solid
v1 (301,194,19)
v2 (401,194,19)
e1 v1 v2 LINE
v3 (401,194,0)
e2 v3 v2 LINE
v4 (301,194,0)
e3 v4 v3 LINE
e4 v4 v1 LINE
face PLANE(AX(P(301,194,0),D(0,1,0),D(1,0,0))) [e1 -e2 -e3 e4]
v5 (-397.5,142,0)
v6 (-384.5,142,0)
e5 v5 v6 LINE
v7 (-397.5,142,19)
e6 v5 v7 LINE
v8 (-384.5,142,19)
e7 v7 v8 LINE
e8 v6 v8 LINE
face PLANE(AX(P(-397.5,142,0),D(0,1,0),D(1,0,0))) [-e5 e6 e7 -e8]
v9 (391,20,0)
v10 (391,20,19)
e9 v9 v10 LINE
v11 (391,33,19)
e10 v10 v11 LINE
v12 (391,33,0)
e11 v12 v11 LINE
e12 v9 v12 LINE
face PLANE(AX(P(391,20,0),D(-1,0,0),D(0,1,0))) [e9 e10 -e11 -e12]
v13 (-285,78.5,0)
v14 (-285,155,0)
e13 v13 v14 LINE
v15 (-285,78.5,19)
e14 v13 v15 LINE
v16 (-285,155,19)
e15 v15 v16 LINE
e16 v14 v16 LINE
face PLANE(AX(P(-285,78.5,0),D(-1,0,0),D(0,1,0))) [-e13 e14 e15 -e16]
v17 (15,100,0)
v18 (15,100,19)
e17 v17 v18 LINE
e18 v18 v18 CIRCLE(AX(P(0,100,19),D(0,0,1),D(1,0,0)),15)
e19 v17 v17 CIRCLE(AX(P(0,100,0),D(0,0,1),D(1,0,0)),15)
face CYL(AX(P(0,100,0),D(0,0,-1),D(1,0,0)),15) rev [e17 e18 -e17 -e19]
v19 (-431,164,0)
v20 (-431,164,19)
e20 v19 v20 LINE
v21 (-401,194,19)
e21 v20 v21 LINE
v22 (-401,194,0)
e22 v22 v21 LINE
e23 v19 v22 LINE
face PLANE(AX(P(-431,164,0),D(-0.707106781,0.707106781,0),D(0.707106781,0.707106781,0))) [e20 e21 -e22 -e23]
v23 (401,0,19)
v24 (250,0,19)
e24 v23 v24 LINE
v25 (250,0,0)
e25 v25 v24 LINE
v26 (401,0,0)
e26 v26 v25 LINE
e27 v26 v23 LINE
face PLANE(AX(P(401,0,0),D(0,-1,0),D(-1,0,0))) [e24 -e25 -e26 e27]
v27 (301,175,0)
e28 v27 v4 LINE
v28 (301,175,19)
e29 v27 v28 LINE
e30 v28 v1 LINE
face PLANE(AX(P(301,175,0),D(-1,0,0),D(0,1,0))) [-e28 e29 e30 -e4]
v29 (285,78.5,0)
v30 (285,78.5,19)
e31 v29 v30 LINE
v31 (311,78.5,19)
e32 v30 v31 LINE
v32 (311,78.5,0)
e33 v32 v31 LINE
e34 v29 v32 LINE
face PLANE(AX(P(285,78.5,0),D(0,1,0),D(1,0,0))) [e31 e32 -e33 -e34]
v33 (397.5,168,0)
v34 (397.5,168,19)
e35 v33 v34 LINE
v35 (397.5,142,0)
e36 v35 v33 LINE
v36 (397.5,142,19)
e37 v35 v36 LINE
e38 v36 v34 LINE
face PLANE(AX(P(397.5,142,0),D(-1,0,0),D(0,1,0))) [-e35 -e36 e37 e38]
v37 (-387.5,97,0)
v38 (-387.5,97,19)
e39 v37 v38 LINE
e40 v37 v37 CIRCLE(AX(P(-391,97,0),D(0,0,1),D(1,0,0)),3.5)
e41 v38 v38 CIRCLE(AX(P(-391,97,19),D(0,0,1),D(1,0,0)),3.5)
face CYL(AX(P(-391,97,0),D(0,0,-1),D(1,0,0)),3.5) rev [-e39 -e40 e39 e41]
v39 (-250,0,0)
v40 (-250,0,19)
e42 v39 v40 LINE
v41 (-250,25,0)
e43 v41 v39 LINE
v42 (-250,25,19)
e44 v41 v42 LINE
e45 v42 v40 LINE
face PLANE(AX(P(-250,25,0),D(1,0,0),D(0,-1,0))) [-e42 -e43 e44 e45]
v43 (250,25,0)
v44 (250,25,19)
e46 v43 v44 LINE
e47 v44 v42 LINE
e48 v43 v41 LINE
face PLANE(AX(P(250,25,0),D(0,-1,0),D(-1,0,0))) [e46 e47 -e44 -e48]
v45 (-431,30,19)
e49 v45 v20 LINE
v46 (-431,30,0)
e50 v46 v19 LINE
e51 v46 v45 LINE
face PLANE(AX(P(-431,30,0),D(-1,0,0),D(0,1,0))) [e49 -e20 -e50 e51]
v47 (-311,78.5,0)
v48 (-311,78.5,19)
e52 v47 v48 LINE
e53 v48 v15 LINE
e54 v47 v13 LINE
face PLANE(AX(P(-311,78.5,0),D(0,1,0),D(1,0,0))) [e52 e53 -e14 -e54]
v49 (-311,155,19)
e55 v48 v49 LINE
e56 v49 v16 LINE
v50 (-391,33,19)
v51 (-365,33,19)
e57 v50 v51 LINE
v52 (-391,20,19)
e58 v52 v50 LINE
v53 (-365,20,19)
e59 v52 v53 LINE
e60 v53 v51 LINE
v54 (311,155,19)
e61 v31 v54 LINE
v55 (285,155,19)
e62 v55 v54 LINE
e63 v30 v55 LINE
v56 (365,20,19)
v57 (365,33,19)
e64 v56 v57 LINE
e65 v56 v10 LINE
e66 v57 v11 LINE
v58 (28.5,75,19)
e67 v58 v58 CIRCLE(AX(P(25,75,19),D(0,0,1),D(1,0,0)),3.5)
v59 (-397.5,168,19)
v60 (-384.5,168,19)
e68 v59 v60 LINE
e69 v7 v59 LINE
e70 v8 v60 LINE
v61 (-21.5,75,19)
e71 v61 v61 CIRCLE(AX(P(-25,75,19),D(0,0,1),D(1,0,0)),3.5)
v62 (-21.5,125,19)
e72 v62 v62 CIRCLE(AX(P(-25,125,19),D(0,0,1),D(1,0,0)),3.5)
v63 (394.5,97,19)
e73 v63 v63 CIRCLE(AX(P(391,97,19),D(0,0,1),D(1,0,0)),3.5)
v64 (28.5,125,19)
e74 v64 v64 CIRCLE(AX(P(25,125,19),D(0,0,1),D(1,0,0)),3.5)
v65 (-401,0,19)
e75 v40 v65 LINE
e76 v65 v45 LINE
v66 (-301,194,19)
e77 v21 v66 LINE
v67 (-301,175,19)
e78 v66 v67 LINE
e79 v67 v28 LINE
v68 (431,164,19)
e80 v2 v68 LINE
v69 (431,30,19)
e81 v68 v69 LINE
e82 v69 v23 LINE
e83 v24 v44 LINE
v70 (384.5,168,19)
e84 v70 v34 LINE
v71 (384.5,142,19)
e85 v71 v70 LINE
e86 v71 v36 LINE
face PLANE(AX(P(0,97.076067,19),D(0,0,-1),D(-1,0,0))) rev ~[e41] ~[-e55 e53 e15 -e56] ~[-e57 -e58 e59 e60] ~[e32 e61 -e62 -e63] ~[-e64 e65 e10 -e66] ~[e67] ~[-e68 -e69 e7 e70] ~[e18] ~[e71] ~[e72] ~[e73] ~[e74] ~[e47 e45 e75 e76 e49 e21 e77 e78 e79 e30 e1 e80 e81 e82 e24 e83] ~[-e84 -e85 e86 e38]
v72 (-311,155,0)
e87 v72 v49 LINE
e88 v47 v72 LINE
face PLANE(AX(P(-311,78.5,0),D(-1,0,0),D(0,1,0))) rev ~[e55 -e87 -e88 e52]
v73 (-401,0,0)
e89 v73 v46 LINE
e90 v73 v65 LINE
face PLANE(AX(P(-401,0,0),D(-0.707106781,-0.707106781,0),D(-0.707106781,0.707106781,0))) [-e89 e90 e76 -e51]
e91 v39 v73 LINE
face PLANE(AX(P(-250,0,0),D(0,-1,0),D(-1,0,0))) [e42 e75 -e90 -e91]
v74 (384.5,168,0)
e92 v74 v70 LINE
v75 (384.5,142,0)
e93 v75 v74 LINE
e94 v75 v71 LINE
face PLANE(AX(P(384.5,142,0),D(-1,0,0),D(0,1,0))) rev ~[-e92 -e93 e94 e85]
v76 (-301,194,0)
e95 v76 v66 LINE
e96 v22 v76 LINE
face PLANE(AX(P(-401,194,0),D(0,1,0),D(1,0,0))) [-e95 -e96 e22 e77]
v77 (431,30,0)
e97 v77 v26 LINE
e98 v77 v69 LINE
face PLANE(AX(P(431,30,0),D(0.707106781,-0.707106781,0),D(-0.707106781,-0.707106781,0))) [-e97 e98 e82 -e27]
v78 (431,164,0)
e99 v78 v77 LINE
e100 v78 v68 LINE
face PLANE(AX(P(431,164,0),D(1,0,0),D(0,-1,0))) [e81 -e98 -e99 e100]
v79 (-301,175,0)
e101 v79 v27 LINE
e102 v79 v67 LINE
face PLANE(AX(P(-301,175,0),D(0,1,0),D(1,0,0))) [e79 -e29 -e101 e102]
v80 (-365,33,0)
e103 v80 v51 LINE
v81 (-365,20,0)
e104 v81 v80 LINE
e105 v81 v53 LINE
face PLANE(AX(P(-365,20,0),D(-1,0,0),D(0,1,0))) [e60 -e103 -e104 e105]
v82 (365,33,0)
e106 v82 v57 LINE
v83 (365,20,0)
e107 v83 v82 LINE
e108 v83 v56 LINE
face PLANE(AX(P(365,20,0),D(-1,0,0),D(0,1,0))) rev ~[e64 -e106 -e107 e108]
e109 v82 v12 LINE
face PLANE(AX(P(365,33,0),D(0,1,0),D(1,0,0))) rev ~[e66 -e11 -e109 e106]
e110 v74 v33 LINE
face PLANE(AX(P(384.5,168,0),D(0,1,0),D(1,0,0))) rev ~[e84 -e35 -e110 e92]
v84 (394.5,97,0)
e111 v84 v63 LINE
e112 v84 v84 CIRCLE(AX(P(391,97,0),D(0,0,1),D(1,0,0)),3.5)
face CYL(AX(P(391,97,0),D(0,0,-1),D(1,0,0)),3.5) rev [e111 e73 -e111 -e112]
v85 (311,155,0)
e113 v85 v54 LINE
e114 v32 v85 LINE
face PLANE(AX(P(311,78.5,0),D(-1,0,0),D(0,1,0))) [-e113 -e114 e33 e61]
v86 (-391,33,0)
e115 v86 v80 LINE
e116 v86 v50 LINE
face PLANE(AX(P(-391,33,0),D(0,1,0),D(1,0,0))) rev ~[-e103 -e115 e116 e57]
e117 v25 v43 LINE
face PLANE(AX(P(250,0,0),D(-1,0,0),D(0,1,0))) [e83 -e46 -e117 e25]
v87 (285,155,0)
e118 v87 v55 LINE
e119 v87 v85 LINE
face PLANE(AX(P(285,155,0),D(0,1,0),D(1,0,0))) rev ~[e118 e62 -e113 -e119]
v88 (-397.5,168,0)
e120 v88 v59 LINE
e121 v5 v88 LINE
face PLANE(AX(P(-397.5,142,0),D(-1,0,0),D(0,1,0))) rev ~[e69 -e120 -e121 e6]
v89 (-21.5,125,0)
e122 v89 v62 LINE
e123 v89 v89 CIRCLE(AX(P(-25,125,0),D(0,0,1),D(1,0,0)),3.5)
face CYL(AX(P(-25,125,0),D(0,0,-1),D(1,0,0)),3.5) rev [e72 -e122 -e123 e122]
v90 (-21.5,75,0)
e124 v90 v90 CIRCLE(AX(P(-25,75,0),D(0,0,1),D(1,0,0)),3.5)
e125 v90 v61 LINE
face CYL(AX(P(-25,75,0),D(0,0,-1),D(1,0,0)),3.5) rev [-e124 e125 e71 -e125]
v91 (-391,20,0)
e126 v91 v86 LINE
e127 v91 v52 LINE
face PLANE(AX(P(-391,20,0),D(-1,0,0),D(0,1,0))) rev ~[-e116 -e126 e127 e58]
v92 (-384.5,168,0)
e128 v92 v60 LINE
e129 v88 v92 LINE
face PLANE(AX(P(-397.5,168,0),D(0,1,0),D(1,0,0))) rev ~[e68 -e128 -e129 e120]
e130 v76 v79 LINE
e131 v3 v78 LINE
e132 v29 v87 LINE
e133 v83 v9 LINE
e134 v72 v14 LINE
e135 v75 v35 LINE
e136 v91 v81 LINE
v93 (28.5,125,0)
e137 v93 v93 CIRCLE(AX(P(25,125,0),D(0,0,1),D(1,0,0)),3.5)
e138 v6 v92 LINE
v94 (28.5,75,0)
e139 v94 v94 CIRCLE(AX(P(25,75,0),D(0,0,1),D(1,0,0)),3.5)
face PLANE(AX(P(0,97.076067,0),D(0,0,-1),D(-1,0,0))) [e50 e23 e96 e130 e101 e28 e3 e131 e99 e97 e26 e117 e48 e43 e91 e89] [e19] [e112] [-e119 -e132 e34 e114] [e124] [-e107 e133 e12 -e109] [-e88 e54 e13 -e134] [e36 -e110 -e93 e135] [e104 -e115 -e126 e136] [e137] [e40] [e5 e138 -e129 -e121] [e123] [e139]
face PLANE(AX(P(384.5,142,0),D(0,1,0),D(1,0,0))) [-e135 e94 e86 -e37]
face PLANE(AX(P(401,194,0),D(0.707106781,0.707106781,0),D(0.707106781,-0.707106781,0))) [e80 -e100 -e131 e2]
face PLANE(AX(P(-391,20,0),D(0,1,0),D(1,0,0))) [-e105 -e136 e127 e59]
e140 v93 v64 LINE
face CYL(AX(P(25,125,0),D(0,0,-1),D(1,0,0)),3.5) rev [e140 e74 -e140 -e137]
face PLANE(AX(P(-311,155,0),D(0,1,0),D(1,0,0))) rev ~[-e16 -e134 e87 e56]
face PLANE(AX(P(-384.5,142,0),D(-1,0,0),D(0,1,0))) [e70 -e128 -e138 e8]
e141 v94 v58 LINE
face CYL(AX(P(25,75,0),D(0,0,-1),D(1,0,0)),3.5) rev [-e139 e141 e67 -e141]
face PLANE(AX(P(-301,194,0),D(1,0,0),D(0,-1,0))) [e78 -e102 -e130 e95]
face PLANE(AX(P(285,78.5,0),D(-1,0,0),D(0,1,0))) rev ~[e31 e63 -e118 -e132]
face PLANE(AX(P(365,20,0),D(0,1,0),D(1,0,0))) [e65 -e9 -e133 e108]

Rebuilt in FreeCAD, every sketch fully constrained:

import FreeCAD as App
import Part
import Sketcher

doc = App.newDocument("Part")
body = doc.addObject("PartDesign::Body", "Body")

# Sketch on XY plane
sketch1 = body.newObject("Sketcher::SketchObject", "Sketch")
sketch1.AttachmentSupport = (doc.getObject("XY_Plane"), [""])
sketch1.MapMode = "FlatFace"
sketch1.addGeometry([
    Part.LineSegment(App.Vector(-301, 175, 0), App.Vector(-301, 194, 0)),  # 0
    Part.LineSegment(App.Vector(-301, 194, 0), App.Vector(-401, 194, 0)),  # 1
    Part.LineSegment(App.Vector(-401, 194, 0), App.Vector(-431, 164, 0)),  # 2
    Part.LineSegment(App.Vector(-431, 164, 0), App.Vector(-431, 30, 0)),  # 3
    Part.LineSegment(App.Vector(-431, 30, 0), App.Vector(-401, 0, 0)),  # 4
    Part.LineSegment(App.Vector(-401, 0, 0), App.Vector(-250, 0, 0)),  # 5
    Part.LineSegment(App.Vector(-250, 0, 0), App.Vector(-250, 25, 0)),  # 6
    Part.LineSegment(App.Vector(-250, 25, 0), App.Vector(250, 25, 0)),  # 7
    Part.LineSegment(App.Vector(250, 25, 0), App.Vector(250, 0, 0)),  # 8
    Part.LineSegment(App.Vector(250, 0, 0), App.Vector(401, 0, 0)),  # 9
    Part.LineSegment(App.Vector(401, 0, 0), App.Vector(431, 30, 0)),  # 10
    Part.LineSegment(App.Vector(431, 30, 0), App.Vector(431, 164, 0)),  # 11
    Part.LineSegment(App.Vector(431, 164, 0), App.Vector(401, 194, 0)),  # 12
    Part.LineSegment(App.Vector(401, 194, 0), App.Vector(301, 194, 0)),  # 13
    Part.LineSegment(App.Vector(301, 194, 0), App.Vector(301, 175, 0)),  # 14
    Part.LineSegment(App.Vector(301, 175, 0), App.Vector(-301, 175, 0)),  # 15
    Part.LineSegment(App.Vector(365, 20, 0), App.Vector(365, 33, 0)),  # 16
    Part.LineSegment(App.Vector(365, 33, 0), App.Vector(391, 33, 0)),  # 17
    Part.LineSegment(App.Vector(391, 33, 0), App.Vector(391, 20, 0)),  # 18
    Part.LineSegment(App.Vector(391, 20, 0), App.Vector(365, 20, 0)),  # 19
    Part.Circle(App.Vector(25, 75, 0), App.Vector(0, 0, 1), 3.5),  # 20
    Part.LineSegment(App.Vector(-391, 20, 0), App.Vector(-391, 33, 0)),  # 21
    Part.LineSegment(App.Vector(-391, 33, 0), App.Vector(-365, 33, 0)),  # 22
    Part.LineSegment(App.Vector(-365, 33, 0), App.Vector(-365, 20, 0)),  # 23
    Part.LineSegment(App.Vector(-365, 20, 0), App.Vector(-391, 20, 0)),  # 24
    Part.Circle(App.Vector(-25, 75, 0), App.Vector(0, 0, 1), 3.5),  # 25
    Part.Circle(App.Vector(391, 97, 0), App.Vector(0, 0, 1), 3.5),  # 26
    Part.LineSegment(App.Vector(285, 78.5, 0), App.Vector(285, 155, 0)),  # 27
    Part.LineSegment(App.Vector(285, 155, 0), App.Vector(311, 155, 0)),  # 28
    Part.LineSegment(App.Vector(311, 155, 0), App.Vector(311, 78.5, 0)),  # 29
    Part.LineSegment(App.Vector(311, 78.5, 0), App.Vector(285, 78.5, 0)),  # 30
    Part.Circle(App.Vector(25, 125, 0), App.Vector(0, 0, 1), 3.5),  # 31
    Part.LineSegment(App.Vector(384.5, 142, 0), App.Vector(384.5, 168, 0)),  # 32
    Part.LineSegment(App.Vector(384.5, 168, 0), App.Vector(397.5, 168, 0)),  # 33
    Part.LineSegment(App.Vector(397.5, 168, 0), App.Vector(397.5, 142, 0)),  # 34
    Part.LineSegment(App.Vector(397.5, 142, 0), App.Vector(384.5, 142, 0)),  # 35
    Part.Circle(App.Vector(0, 100, 0), App.Vector(0, 0, 1), 15),  # 36
    Part.Circle(App.Vector(-25, 125, 0), App.Vector(0, 0, 1), 3.5),  # 37
    Part.Circle(App.Vector(-391, 97, 0), App.Vector(0, 0, 1), 3.5),  # 38
    Part.LineSegment(App.Vector(-311, 78.5, 0), App.Vector(-311, 155, 0)),  # 39
    Part.LineSegment(App.Vector(-311, 155, 0), App.Vector(-285, 155, 0)),  # 40
    Part.LineSegment(App.Vector(-285, 155, 0), App.Vector(-285, 78.5, 0)),  # 41
    Part.LineSegment(App.Vector(-285, 78.5, 0), App.Vector(-311, 78.5, 0)),  # 42
    Part.LineSegment(App.Vector(-397.5, 142, 0), App.Vector(-397.5, 168, 0)),  # 43
    Part.LineSegment(App.Vector(-397.5, 168, 0), App.Vector(-384.5, 168, 0)),  # 44
    Part.LineSegment(App.Vector(-384.5, 168, 0), App.Vector(-384.5, 142, 0)),  # 45
    Part.LineSegment(App.Vector(-384.5, 142, 0), App.Vector(-397.5, 142, 0)),  # 46
], False)
sketch1.addConstraint([
    Sketcher.Constraint("Coincident", 0, 2, 1, 1),
    Sketcher.Constraint("Coincident", 1, 2, 2, 1),
    Sketcher.Constraint("Coincident", 2, 2, 3, 1),
    Sketcher.Constraint("Coincident", 3, 2, 4, 1),
    Sketcher.Constraint("Coincident", 4, 2, 5, 1),
    Sketcher.Constraint("Coincident", 5, 2, 6, 1),
    Sketcher.Constraint("Coincident", 6, 2, 7, 1),
    Sketcher.Constraint("Coincident", 7, 2, 8, 1),
    Sketcher.Constraint("Coincident", 8, 2, 9, 1),
    Sketcher.Constraint("Coincident", 9, 2, 10, 1),
    Sketcher.Constraint("Coincident", 10, 2, 11, 1),
    Sketcher.Constraint("Coincident", 11, 2, 12, 1),
    Sketcher.Constraint("Coincident", 12, 2, 13, 1),
    Sketcher.Constraint("Coincident", 13, 2, 14, 1),
    Sketcher.Constraint("Coincident", 14, 2, 15, 1),
    Sketcher.Constraint("Coincident", 15, 2, 0, 1),
    Sketcher.Constraint("Coincident", 16, 2, 17, 1),
    Sketcher.Constraint("Coincident", 17, 2, 18, 1),
    Sketcher.Constraint("Coincident", 18, 2, 19, 1),
    Sketcher.Constraint("Coincident", 19, 2, 16, 1),
    Sketcher.Constraint("Coincident", 21, 2, 22, 1),
    Sketcher.Constraint("Coincident", 22, 2, 23, 1),
    Sketcher.Constraint("Coincident", 23, 2, 24, 1),
    Sketcher.Constraint("Coincident", 24, 2, 21, 1),
    Sketcher.Constraint("Coincident", 27, 2, 28, 1),
    Sketcher.Constraint("Coincident", 28, 2, 29, 1),
    Sketcher.Constraint("Coincident", 29, 2, 30, 1),
    Sketcher.Constraint("Coincident", 30, 2, 27, 1),
    Sketcher.Constraint("Coincident", 32, 2, 33, 1),
    Sketcher.Constraint("Coincident", 33, 2, 34, 1),
    Sketcher.Constraint("Coincident", 34, 2, 35, 1),
    Sketcher.Constraint("Coincident", 35, 2, 32, 1),
    Sketcher.Constraint("Coincident", 39, 2, 40, 1),
    Sketcher.Constraint("Coincident", 40, 2, 41, 1),
    Sketcher.Constraint("Coincident", 41, 2, 42, 1),
    Sketcher.Constraint("Coincident", 42, 2, 39, 1),
    Sketcher.Constraint("Coincident", 43, 2, 44, 1),
    Sketcher.Constraint("Coincident", 44, 2, 45, 1),
    Sketcher.Constraint("Coincident", 45, 2, 46, 1),
    Sketcher.Constraint("Coincident", 46, 2, 43, 1),
    Sketcher.Constraint("Vertical", 0),
    Sketcher.Constraint("Horizontal", 1),
    Sketcher.Constraint("Vertical", 3),
    Sketcher.Constraint("Horizontal", 5),
    Sketcher.Constraint("Vertical", 6),
    Sketcher.Constraint("Horizontal", 7),
    Sketcher.Constraint("Vertical", 8),
    Sketcher.Constraint("Horizontal", 9),
    Sketcher.Constraint("Vertical", 11),
    Sketcher.Constraint("Horizontal", 13),
    Sketcher.Constraint("Vertical", 14),
    Sketcher.Constraint("Horizontal", 15),
    Sketcher.Constraint("Vertical", 16),
    Sketcher.Constraint("Horizontal", 17),
    Sketcher.Constraint("Vertical", 18),
    Sketcher.Constraint("Horizontal", 19),
    Sketcher.Constraint("Vertical", 21),
    Sketcher.Constraint("Horizontal", 22),
    Sketcher.Constraint("Vertical", 23),
    Sketcher.Constraint("Horizontal", 24),
    Sketcher.Constraint("Vertical", 27),
    Sketcher.Constraint("Horizontal", 28),
    Sketcher.Constraint("Vertical", 29),
    Sketcher.Constraint("Horizontal", 30),
    Sketcher.Constraint("Vertical", 32),
    Sketcher.Constraint("Horizontal", 33),
    Sketcher.Constraint("Vertical", 34),
    Sketcher.Constraint("Horizontal", 35),
    Sketcher.Constraint("Vertical", 39),
    Sketcher.Constraint("Horizontal", 40),
    Sketcher.Constraint("Vertical", 41),
    Sketcher.Constraint("Horizontal", 42),
    Sketcher.Constraint("Vertical", 43),
    Sketcher.Constraint("Horizontal", 44),
    Sketcher.Constraint("Vertical", 45),
    Sketcher.Constraint("Horizontal", 46),
    Sketcher.Constraint("Equal", 20, 25),
    Sketcher.Constraint("Equal", 25, 26),
    Sketcher.Constraint("Equal", 26, 31),
    Sketcher.Constraint("Equal", 31, 37),
    Sketcher.Constraint("Equal", 37, 38),
    Sketcher.Constraint("Symmetric", 5, 2, 8, 2, -1, 1),
    Sketcher.Constraint("Symmetric", 20, 3, 25, 3, -2),
    Sketcher.Constraint("Symmetric", 31, 3, 37, 3, -2),
    Sketcher.Constraint("Symmetric", 26, 3, 38, 3, -2),
    Sketcher.Constraint("Symmetric", 4, 2, 9, 2, -2),
    Sketcher.Constraint("Symmetric", 3, 2, 10, 2, -2),
    Sketcher.Constraint("Symmetric", 1, 2, 12, 2, -2),
    Sketcher.Constraint("Symmetric", 17, 2, 21, 2, -2),
    Sketcher.Constraint("Symmetric", 19, 2, 23, 2, -2),
    Sketcher.Constraint("Symmetric", 28, 2, 39, 2, -2),
    Sketcher.Constraint("Symmetric", 30, 2, 41, 2, -2),
    Sketcher.Constraint("Symmetric", 33, 2, 43, 2, -2),
    Sketcher.Constraint("Symmetric", 35, 2, 45, 2, -2),
    Sketcher.Constraint("PointOnObject", 36, 3, -2),
    Sketcher.Constraint("Perpendicular", 2, 4),
    Sketcher.Constraint("Perpendicular", 4, 10),
    Sketcher.Constraint("Perpendicular", 10, 12),
    Sketcher.Constraint("Vertical", 20, 3, 31, 3),
    Sketcher.Constraint("Vertical", 1, 2, 4, 2),
    Sketcher.Constraint("Vertical", 26, 3, 17, 2),
    Sketcher.Constraint("Equal", 1, 13),
    Sketcher.Constraint("Equal", 24, 28),
    Sketcher.Constraint("Equal", 46, 16),
    Sketcher.Constraint("Equal", 42, 32),
    Sketcher.Constraint("Diameter", 20, 7.0),
    Sketcher.Constraint("Diameter", 36, 30.0),
    Sketcher.Constraint("DistanceX", 1, 2, 1, 1, 100.0),
    Sketcher.Constraint("DistanceX", 5, 1, 5, 2, 151.0),
    Sketcher.Constraint("DistanceX", 7, 1, 7, 2, 500.0),
    Sketcher.Constraint("DistanceX", 17, 1, 17, 2, 26.0),
    Sketcher.Constraint("DistanceX", 33, 1, 33, 2, 13.0),
    Sketcher.Constraint("DistanceY", 0, 1, 0, 2, 19.0),
    Sketcher.Constraint("DistanceY", 3, 2, 3, 1, 134.0),
    Sketcher.Constraint("DistanceY", 6, 1, 6, 2, 25.0),
    Sketcher.Constraint("DistanceY", 27, 1, 27, 2, 76.5),
    Sketcher.Constraint("DistanceX", -1, 1, 20, 3, 25.0),
    Sketcher.Constraint("DistanceY", -1, 1, 20, 3, 75.0),
    Sketcher.Constraint("DistanceX", -1, 1, 26, 3, 391.0),
    Sketcher.Constraint("DistanceY", -1, 1, 26, 3, 97.0),
    Sketcher.Constraint("DistanceY", -1, 1, 31, 3, 125.0),
    Sketcher.Constraint("DistanceY", -1, 1, 36, 3, 100.0),
    Sketcher.Constraint("DistanceY", -1, 1, 0, 2, 194.0),
    Sketcher.Constraint("DistanceY", -1, 1, 16, 2, 33.0),
    Sketcher.Constraint("DistanceX", -1, 1, 27, 2, 285.0),
    Sketcher.Constraint("DistanceY", -1, 1, 27, 2, 155.0),
    Sketcher.Constraint("DistanceY", -1, 1, 32, 2, 168.0),
    Sketcher.Constraint("DistanceX", -1, 1, 32, 2, 384.5),
])
pad1 = body.newObject("PartDesign::Pad", "Pad")
pad1.Profile = sketch1
pad1.Length = 19

doc.recompute()
